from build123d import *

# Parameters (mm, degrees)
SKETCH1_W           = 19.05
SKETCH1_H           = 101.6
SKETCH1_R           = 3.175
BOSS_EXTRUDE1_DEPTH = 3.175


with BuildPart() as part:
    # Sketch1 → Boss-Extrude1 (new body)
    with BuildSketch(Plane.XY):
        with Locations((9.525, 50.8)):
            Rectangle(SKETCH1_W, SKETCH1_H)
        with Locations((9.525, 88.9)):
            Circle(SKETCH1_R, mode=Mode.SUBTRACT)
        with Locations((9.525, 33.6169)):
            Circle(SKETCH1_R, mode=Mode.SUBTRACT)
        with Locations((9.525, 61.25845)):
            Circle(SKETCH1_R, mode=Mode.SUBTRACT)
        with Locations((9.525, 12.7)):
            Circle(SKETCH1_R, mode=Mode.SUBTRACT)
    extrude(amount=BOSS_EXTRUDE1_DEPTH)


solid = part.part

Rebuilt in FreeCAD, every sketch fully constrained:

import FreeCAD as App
import Part
import Sketcher

V = App.Vector
Q = App.Units.Quantity


def add_polygon(sketch, points):
    """Adds a closed chain of lines whose ends are joined by coincident constraints."""
    first, n = sketch.GeometryCount, len(points)
    for a, b in zip(points, points[1:] + points[:1]):
        sketch.addGeometry(Part.LineSegment(App.Vector(*a, 0), App.Vector(*b, 0)), False)
    for i in range(n):
        sketch.addConstraint(Sketcher.Constraint("Coincident", first + i, 2, first + (i + 1) % n, 1))

doc = App.newDocument("Part")
body = doc.addObject("PartDesign::Body", "Body")

# Sketch on XY plane
sketch1 = body.newObject("Sketcher::SketchObject", "Sketch")
sketch1.AttachmentSupport = (doc.getObject("XY_Plane"), [""])
sketch1.MapMode = "FlatFace"
add_polygon(sketch1, [(0, 101.6), (0, 0), (19.1, 0), (19.1, 101.6)])  # lines 0-3
sketch1.addGeometry(Part.Circle(V(9.5, 12.7, 0), V(0, 0, 1), 3.2), False)  # 4
sketch1.addGeometry(Part.Circle(V(9.5, 33.6, 0), V(0, 0, 1), 3.2), False)  # 5
sketch1.addGeometry(Part.Circle(V(9.5, 61.3, 0), V(0, 0, 1), 3.2), False)  # 6
sketch1.addGeometry(Part.Circle(V(9.5, 88.9, 0), V(0, 0, 1), 3.2), False)  # 7
sketch1.addConstraint(Sketcher.Constraint("Vertical", 0))
sketch1.addConstraint(Sketcher.Constraint("Horizontal", 1))
sketch1.addConstraint(Sketcher.Constraint("Vertical", 2))
sketch1.addConstraint(Sketcher.Constraint("Horizontal", 3))
sketch1.addConstraint(Sketcher.Constraint("Coincident", 0, 2, -1, 1))
sketch1.addConstraint(Sketcher.Constraint("Equal", 4, 5))
sketch1.addConstraint(Sketcher.Constraint("Equal", 5, 6))
sketch1.addConstraint(Sketcher.Constraint("Equal", 6, 7))
sketch1.addConstraint(Sketcher.Constraint("Vertical", 4, 3, 5, 3))
sketch1.addConstraint(Sketcher.Constraint("Vertical", 5, 3, 6, 3))
sketch1.addConstraint(Sketcher.Constraint("Vertical", 6, 3, 7, 3))
sketch1.addConstraint(Sketcher.Constraint("Diameter", 4, Q("0.25 in")))
sketch1.addConstraint(Sketcher.Constraint("DistanceY", 0, 2, 0, 1, Q("4 in")))
sketch1.addConstraint(Sketcher.Constraint("DistanceY", 4, 3, 7, 3, Q("3 in")))
sketch1.addConstraint(Sketcher.Constraint("DistanceX", 1, 1, 1, 2, Q("0.75 in")))
sketch1.addConstraint(Sketcher.Constraint("DistanceY", -1, 1, 4, 3, Q("0.5 in")))
sketch1.addConstraint(Sketcher.Constraint("DistanceX", -1, 1, 4, 3, Q("0.375 in")))
sketch1.addConstraint(Sketcher.Constraint("DistanceY", -1, 1, 5, 3, Q("1.3235 in")))
sketch1.addConstraint(Sketcher.Constraint("DistanceY", -1, 1, 6, 3, 61.25845))
pad1 = body.newObject("PartDesign::Pad", "Pad")
pad1.Profile = sketch1
pad1.Length = Q("0.125 in")

doc.recompute()
